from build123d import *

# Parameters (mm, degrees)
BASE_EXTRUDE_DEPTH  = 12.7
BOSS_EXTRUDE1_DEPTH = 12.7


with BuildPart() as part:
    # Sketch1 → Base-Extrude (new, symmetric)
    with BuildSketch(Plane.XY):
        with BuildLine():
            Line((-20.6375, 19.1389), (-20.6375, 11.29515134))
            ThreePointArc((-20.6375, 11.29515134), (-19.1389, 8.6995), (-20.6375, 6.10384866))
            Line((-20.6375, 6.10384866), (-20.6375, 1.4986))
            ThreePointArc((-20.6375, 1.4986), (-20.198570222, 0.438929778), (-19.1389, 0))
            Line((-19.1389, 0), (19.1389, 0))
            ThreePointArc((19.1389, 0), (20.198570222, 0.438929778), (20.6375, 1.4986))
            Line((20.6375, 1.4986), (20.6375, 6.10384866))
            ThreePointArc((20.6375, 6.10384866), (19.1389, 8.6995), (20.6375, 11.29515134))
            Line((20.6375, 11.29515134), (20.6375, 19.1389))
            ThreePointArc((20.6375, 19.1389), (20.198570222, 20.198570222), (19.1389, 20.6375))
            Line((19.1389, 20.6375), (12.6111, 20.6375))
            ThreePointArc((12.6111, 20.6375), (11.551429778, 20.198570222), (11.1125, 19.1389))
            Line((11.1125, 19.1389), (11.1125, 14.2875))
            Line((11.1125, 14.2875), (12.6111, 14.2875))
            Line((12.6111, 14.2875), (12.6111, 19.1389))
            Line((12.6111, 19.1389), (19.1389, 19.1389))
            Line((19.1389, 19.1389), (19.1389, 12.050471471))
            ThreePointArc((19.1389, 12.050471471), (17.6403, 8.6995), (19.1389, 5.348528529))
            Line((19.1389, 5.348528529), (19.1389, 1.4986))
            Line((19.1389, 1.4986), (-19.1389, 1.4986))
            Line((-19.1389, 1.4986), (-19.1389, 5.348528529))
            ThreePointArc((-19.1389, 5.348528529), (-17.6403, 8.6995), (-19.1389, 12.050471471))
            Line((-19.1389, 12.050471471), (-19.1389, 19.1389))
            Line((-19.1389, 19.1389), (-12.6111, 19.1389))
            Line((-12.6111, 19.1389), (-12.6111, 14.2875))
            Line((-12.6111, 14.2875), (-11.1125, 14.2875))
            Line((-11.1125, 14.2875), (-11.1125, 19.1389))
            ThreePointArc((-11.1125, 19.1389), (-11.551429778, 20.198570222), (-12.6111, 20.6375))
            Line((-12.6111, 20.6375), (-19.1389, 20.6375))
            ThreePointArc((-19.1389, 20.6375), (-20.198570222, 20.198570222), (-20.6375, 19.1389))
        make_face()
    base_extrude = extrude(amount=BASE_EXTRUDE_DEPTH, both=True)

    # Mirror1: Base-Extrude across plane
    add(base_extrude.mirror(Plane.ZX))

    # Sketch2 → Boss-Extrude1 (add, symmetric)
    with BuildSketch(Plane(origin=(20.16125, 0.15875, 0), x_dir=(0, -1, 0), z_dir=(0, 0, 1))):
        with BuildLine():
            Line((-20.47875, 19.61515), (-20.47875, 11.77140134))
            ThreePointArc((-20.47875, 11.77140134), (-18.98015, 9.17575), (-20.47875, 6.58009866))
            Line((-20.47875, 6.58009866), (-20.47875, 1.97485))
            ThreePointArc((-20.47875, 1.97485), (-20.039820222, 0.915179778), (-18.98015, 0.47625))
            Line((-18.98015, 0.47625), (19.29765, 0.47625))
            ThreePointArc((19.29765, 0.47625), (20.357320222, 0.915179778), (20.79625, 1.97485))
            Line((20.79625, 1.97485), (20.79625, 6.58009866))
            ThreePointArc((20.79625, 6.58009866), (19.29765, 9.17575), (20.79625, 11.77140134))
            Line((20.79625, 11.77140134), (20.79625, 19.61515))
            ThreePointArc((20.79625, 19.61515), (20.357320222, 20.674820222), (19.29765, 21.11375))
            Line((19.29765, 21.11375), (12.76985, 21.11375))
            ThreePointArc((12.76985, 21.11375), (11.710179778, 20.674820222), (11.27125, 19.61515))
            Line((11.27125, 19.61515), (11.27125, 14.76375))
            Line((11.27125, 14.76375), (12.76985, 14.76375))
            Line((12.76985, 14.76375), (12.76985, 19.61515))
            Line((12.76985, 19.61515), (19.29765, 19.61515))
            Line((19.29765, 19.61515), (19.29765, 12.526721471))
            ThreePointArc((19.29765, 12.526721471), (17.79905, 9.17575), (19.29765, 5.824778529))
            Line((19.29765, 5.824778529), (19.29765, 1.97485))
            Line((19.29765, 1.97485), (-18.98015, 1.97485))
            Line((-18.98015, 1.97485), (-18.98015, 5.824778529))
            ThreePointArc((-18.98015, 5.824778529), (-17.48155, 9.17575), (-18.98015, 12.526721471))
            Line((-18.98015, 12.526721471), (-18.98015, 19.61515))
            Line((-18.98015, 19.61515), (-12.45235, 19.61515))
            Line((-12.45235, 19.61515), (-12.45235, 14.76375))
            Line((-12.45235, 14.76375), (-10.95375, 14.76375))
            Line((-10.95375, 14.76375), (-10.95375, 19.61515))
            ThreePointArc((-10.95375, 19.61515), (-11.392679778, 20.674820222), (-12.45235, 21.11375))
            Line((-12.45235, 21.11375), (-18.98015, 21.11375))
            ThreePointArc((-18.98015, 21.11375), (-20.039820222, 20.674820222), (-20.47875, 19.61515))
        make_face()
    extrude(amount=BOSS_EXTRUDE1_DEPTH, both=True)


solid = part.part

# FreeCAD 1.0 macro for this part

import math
import FreeCAD as App
import Part
import Sketcher
Q = App.Units.Quantity

doc = App.newDocument("Part")
body = doc.addObject("PartDesign::Body", "Body")

sketch1 = doc.addObject("Sketcher::SketchObject", "Sketch")
body.addObject(sketch1)
sketch1.AttachmentSupport = (doc.XY_Plane, [""])
sketch1.MapMode = "FlatFace"
sketch1.addGeometry(Part.LineSegment(App.Vector(-20.6, 19.1, 0), App.Vector(-20.6, 11.3, 0)), False)
sketch1.addGeometry(Part.ArcOfCircle(Part.Circle(App.Vector(-22.1, 8.7, 0), App.Vector(0, 0, 1), 3), math.radians(-60), math.radians(60)), False)
sketch1.addGeometry(Part.LineSegment(App.Vector(-20.6, 6.1, 0), App.Vector(-20.6, 1.5, 0)), False)
sketch1.addGeometry(Part.ArcOfCircle(Part.Circle(App.Vector(-19.1, 1.5, 0), App.Vector(0, 0, 1), 1.5), math.radians(-180), math.radians(-90)), False)
sketch1.addGeometry(Part.LineSegment(App.Vector(-19.1, 0, 0), App.Vector(19.1, 0, 0)), False)
sketch1.addGeometry(Part.ArcOfCircle(Part.Circle(App.Vector(19.1, 1.5, 0), App.Vector(0, 0, 1), 1.5), math.radians(-90), math.radians(0)), False)
sketch1.addGeometry(Part.LineSegment(App.Vector(20.6, 1.5, 0), App.Vector(20.6, 6.1, 0)), False)
sketch1.addGeometry(Part.ArcOfCircle(Part.Circle(App.Vector(22.1, 8.7, 0), App.Vector(0, 0, 1), 3), math.radians(120), math.radians(240)), False)
sketch1.addGeometry(Part.LineSegment(App.Vector(20.6, 11.3, 0), App.Vector(20.6, 19.1, 0)), False)
sketch1.addGeometry(Part.ArcOfCircle(Part.Circle(App.Vector(19.1, 19.1, 0), App.Vector(0, 0, 1), 1.5), math.radians(0), math.radians(90)), False)
sketch1.addGeometry(Part.LineSegment(App.Vector(19.1, 20.6, 0), App.Vector(12.6, 20.6, 0)), False)
sketch1.addGeometry(Part.ArcOfCircle(Part.Circle(App.Vector(12.6, 19.1, 0), App.Vector(0, 0, 1), 1.5), math.radians(90), math.radians(180)), False)
sketch1.addGeometry(Part.LineSegment(App.Vector(11.1, 19.1, 0), App.Vector(11.1, 14.3, 0)), False)
sketch1.addGeometry(Part.LineSegment(App.Vector(11.1, 14.3, 0), App.Vector(12.6, 14.3, 0)), False)
sketch1.addGeometry(Part.LineSegment(App.Vector(12.6, 14.3, 0), App.Vector(12.6, 19.1, 0)), False)
sketch1.addGeometry(Part.LineSegment(App.Vector(12.6, 19.1, 0), App.Vector(19.1, 19.1, 0)), False)
sketch1.addGeometry(Part.LineSegment(App.Vector(19.1, 19.1, 0), App.Vector(19.1, 12.1, 0)), False)
sketch1.addGeometry(Part.ArcOfCircle(Part.Circle(App.Vector(22.1, 8.7, 0), App.Vector(0, 0, 1), 4.5), math.radians(132), math.radians(228)), False)
sketch1.addGeometry(Part.LineSegment(App.Vector(19.1, 5.3, 0), App.Vector(19.1, 1.5, 0)), False)
sketch1.addGeometry(Part.LineSegment(App.Vector(19.1, 1.5, 0), App.Vector(-19.1, 1.5, 0)), False)
sketch1.addGeometry(Part.LineSegment(App.Vector(-19.1, 1.5, 0), App.Vector(-19.1, 5.3, 0)), False)
sketch1.addGeometry(Part.ArcOfCircle(Part.Circle(App.Vector(-22.1, 8.7, 0), App.Vector(0, 0, 1), 4.5), math.radians(-48), math.radians(48)), False)
sketch1.addGeometry(Part.LineSegment(App.Vector(-19.1, 12.1, 0), App.Vector(-19.1, 19.1, 0)), False)
sketch1.addGeometry(Part.LineSegment(App.Vector(-19.1, 19.1, 0), App.Vector(-12.6, 19.1, 0)), False)
sketch1.addGeometry(Part.LineSegment(App.Vector(-12.6, 19.1, 0), App.Vector(-12.6, 14.3, 0)), False)
sketch1.addGeometry(Part.LineSegment(App.Vector(-12.6, 14.3, 0), App.Vector(-11.1, 14.3, 0)), False)
sketch1.addGeometry(Part.LineSegment(App.Vector(-11.1, 14.3, 0), App.Vector(-11.1, 19.1, 0)), False)
sketch1.addGeometry(Part.ArcOfCircle(Part.Circle(App.Vector(-12.6, 19.1, 0), App.Vector(0, 0, 1), 1.5), math.radians(0), math.radians(90)), False)
sketch1.addGeometry(Part.LineSegment(App.Vector(-12.6, 20.6, 0), App.Vector(-19.1, 20.6, 0)), False)
sketch1.addGeometry(Part.ArcOfCircle(Part.Circle(App.Vector(-19.1, 19.1, 0), App.Vector(0, 0, 1), 1.5), math.radians(90), math.radians(180)), False)
sketch1.addConstraint(Sketcher.Constraint("Coincident", 0, 2, 1, 2))
sketch1.addConstraint(Sketcher.Constraint("Coincident", 1, 1, 2, 1))
sketch1.addConstraint(Sketcher.Constraint("Tangent", 2, 2, 3, 1))
sketch1.addConstraint(Sketcher.Constraint("Tangent", 3, 2, 4, 1))
sketch1.addConstraint(Sketcher.Constraint("Tangent", 4, 2, 5, 1))
sketch1.addConstraint(Sketcher.Constraint("Tangent", 5, 2, 6, 1))
sketch1.addConstraint(Sketcher.Constraint("Coincident", 6, 2, 7, 2))
sketch1.addConstraint(Sketcher.Constraint("Coincident", 7, 1, 8, 1))
sketch1.addConstraint(Sketcher.Constraint("Tangent", 8, 2, 9, 1))
sketch1.addConstraint(Sketcher.Constraint("Tangent", 9, 2, 10, 1))
sketch1.addConstraint(Sketcher.Constraint("Tangent", 10, 2, 11, 1))
sketch1.addConstraint(Sketcher.Constraint("Tangent", 11, 2, 12, 1))
sketch1.addConstraint(Sketcher.Constraint("Coincident", 12, 2, 13, 1))
sketch1.addConstraint(Sketcher.Constraint("Coincident", 13, 2, 14, 1))
sketch1.addConstraint(Sketcher.Constraint("Coincident", 14, 2, 15, 1))
sketch1.addConstraint(Sketcher.Constraint("Coincident", 15, 2, 16, 1))
sketch1.addConstraint(Sketcher.Constraint("Coincident", 16, 2, 17, 1))
sketch1.addConstraint(Sketcher.Constraint("Coincident", 17, 2, 18, 1))
sketch1.addConstraint(Sketcher.Constraint("Coincident", 18, 2, 19, 1))
sketch1.addConstraint(Sketcher.Constraint("Coincident", 19, 2, 20, 1))
sketch1.addConstraint(Sketcher.Constraint("Coincident", 20, 2, 21, 1))
sketch1.addConstraint(Sketcher.Constraint("Coincident", 21, 2, 22, 1))
sketch1.addConstraint(Sketcher.Constraint("Coincident", 22, 2, 23, 1))
sketch1.addConstraint(Sketcher.Constraint("Coincident", 23, 2, 24, 1))
sketch1.addConstraint(Sketcher.Constraint("Coincident", 24, 2, 25, 1))
sketch1.addConstraint(Sketcher.Constraint("Coincident", 25, 2, 26, 1))
sketch1.addConstraint(Sketcher.Constraint("Tangent", 26, 2, 27, 1))
sketch1.addConstraint(Sketcher.Constraint("Tangent", 27, 2, 28, 1))
sketch1.addConstraint(Sketcher.Constraint("Tangent", 28, 2, 29, 1))
sketch1.addConstraint(Sketcher.Constraint("Tangent", 29, 2, 0, 1))
sketch1.addConstraint(Sketcher.Constraint("Vertical", 0))
sketch1.addConstraint(Sketcher.Constraint("Vertical", 2))
sketch1.addConstraint(Sketcher.Constraint("Horizontal", 4))
sketch1.addConstraint(Sketcher.Constraint("Vertical", 6))
sketch1.addConstraint(Sketcher.Constraint("Vertical", 8))
sketch1.addConstraint(Sketcher.Constraint("Horizontal", 10))
sketch1.addConstraint(Sketcher.Constraint("Vertical", 12))
sketch1.addConstraint(Sketcher.Constraint("Horizontal", 13))
sketch1.addConstraint(Sketcher.Constraint("Vertical", 14))
sketch1.addConstraint(Sketcher.Constraint("Horizontal", 15))
sketch1.addConstraint(Sketcher.Constraint("Vertical", 16))
sketch1.addConstraint(Sketcher.Constraint("Vertical", 18))
sketch1.addConstraint(Sketcher.Constraint("Horizontal", 19))
sketch1.addConstraint(Sketcher.Constraint("Vertical", 20))
sketch1.addConstraint(Sketcher.Constraint("Vertical", 22))
sketch1.addConstraint(Sketcher.Constraint("Horizontal", 23))
sketch1.addConstraint(Sketcher.Constraint("Vertical", 24))
sketch1.addConstraint(Sketcher.Constraint("Horizontal", 25))
sketch1.addConstraint(Sketcher.Constraint("Vertical", 26))
sketch1.addConstraint(Sketcher.Constraint("Horizontal", 28))
sketch1.addConstraint(Sketcher.Constraint("Coincident", 17, 3, 7, 3))
sketch1.addConstraint(Sketcher.Constraint("Coincident", 21, 3, 1, 3))
sketch1.addConstraint(Sketcher.Constraint("Coincident", 14, 2, 11, 3))
sketch1.addConstraint(Sketcher.Constraint("Coincident", 15, 2, 9, 3))
sketch1.addConstraint(Sketcher.Constraint("Coincident", 18, 2, 5, 3))
sketch1.addConstraint(Sketcher.Constraint("Coincident", 19, 2, 3, 3))
sketch1.addConstraint(Sketcher.Constraint("Coincident", 22, 2, 29, 3))
sketch1.addConstraint(Sketcher.Constraint("Coincident", 23, 2, 27, 3))
sketch1.addConstraint(Sketcher.Constraint("Equal", 1, 7))
sketch1.addConstraint(Sketcher.Constraint("Equal", 5, 9))
sketch1.addConstraint(Sketcher.Constraint("Equal", 17, 21))
sketch1.addConstraint(Sketcher.Constraint("Equal", 11, 27))
sketch1.addConstraint(Sketcher.Constraint("Symmetric", 3, 2, 4, 2, -1, 1))
sketch1.addConstraint(Sketcher.Constraint("Symmetric", 1, 3, 7, 3, -2))
sketch1.addConstraint(Sketcher.Constraint("Symmetric", 11, 3, 27, 3, -2))
sketch1.addConstraint(Sketcher.Constraint("Horizontal", 0, 2, 7, 1))
sketch1.addConstraint(Sketcher.Constraint("Horizontal", 13, 2, 24, 2))
sketch1.addConstraint(Sketcher.Constraint("Vertical", 5, 3, 9, 3))
sketch1.addConstraint(Sketcher.Constraint("Radius", 1, Q("0.118 in")))
sketch1.addConstraint(Sketcher.Constraint("Radius", 3, Q("0.059 in")))
sketch1.addConstraint(Sketcher.Constraint("Radius", 17, Q("0.177 in")))
sketch1.addConstraint(Sketcher.Constraint("DistanceX", 4, 1, 4, 2, Q("1.507 in")))
sketch1.addConstraint(Sketcher.Constraint("DistanceX", 10, 2, 10, 1, Q("0.257 in")))
sketch1.addConstraint(Sketcher.Constraint("DistanceY", 12, 2, 12, 1, Q("0.191 in")))
sketch1.addConstraint(Sketcher.Constraint("DistanceY", 7, 3, 9, 2, Q("0.47 in")))
sketch1.addConstraint(Sketcher.Constraint("DistanceY", -1, 1, 9, 2, Q("0.8125 in")))
sketch1.addConstraint(Sketcher.Constraint("DistanceX", 1, 3, 3, 3, Q("0.118 in")))
pad1 = doc.addObject("PartDesign::Pad", "Pad")
body.addObject(pad1)
pad1.Profile = sketch1
pad1.Length = Q("1 in")
pad1.Midplane = True
doc.recompute()

mirrored = doc.addObject("PartDesign::Mirrored", "Mirrored")
body.addObject(mirrored)
mirrored.Originals = [pad1]
mirrored.MirrorPlane = (doc.XZ_Plane, [""])
body.Tip = mirrored

sketch2 = doc.addObject("Sketcher::SketchObject", "Sketch001")
body.addObject(sketch2)
sketch2.AttachmentSupport = (doc.XY_Plane, [""])
sketch2.MapMode = "FlatFace"
sketch2.addGeometry(Part.LineSegment(App.Vector(39.8, 20.6, 0), App.Vector(31.9, 20.6, 0)), False)
sketch2.addGeometry(Part.ArcOfCircle(Part.Circle(App.Vector(29.3, 22.1, 0), App.Vector(0, 0, 1), 3), math.radians(-150), math.radians(-30)), False)
sketch2.addGeometry(Part.LineSegment(App.Vector(26.7, 20.6, 0), App.Vector(22.1, 20.6, 0)), False)
sketch2.addGeometry(Part.ArcOfCircle(Part.Circle(App.Vector(22.1, 19.1, 0), App.Vector(0, 0, 1), 1.5), math.radians(90), math.radians(180)), False)
sketch2.addGeometry(Part.LineSegment(App.Vector(20.6, 19.1, 0), App.Vector(20.6, -19.1, 0)), False)
sketch2.addGeometry(Part.ArcOfCircle(Part.Circle(App.Vector(22.1, -19.1, 0), App.Vector(0, 0, 1), 1.5), math.radians(-180), math.radians(-90)), False)
sketch2.addGeometry(Part.LineSegment(App.Vector(22.1, -20.6, 0), App.Vector(26.7, -20.6, 0)), False)
sketch2.addGeometry(Part.ArcOfCircle(Part.Circle(App.Vector(29.3, -22.1, 0), App.Vector(0, 0, 1), 3), math.radians(30), math.radians(150)), False)
sketch2.addGeometry(Part.LineSegment(App.Vector(31.9, -20.6, 0), App.Vector(39.8, -20.6, 0)), False)
sketch2.addGeometry(Part.ArcOfCircle(Part.Circle(App.Vector(39.8, -19.1, 0), App.Vector(0, 0, 1), 1.5), math.radians(-90), math.radians(0)), False)
sketch2.addGeometry(Part.LineSegment(App.Vector(41.3, -19.1, 0), App.Vector(41.3, -12.6, 0)), False)
sketch2.addGeometry(Part.ArcOfCircle(Part.Circle(App.Vector(39.8, -12.6, 0), App.Vector(0, 0, 1), 1.5), math.radians(0), math.radians(90)), False)
sketch2.addGeometry(Part.LineSegment(App.Vector(39.8, -11.1, 0), App.Vector(34.9, -11.1, 0)), False)
sketch2.addGeometry(Part.LineSegment(App.Vector(34.9, -11.1, 0), App.Vector(34.9, -12.6, 0)), False)
sketch2.addGeometry(Part.LineSegment(App.Vector(34.9, -12.6, 0), App.Vector(39.8, -12.6, 0)), False)
sketch2.addGeometry(Part.LineSegment(App.Vector(39.8, -12.6, 0), App.Vector(39.8, -19.1, 0)), False)
sketch2.addGeometry(Part.LineSegment(App.Vector(39.8, -19.1, 0), App.Vector(32.7, -19.1, 0)), False)
sketch2.addGeometry(Part.ArcOfCircle(Part.Circle(App.Vector(29.3, -22.1, 0), App.Vector(0, 0, 1), 4.5), math.radians(42), math.radians(138)), False)
sketch2.addGeometry(Part.LineSegment(App.Vector(26, -19.1, 0), App.Vector(22.1, -19.1, 0)), False)
sketch2.addGeometry(Part.LineSegment(App.Vector(22.1, -19.1, 0), App.Vector(22.1, 19.1, 0)), False)
sketch2.addGeometry(Part.LineSegment(App.Vector(22.1, 19.1, 0), App.Vector(26, 19.1, 0)), False)
sketch2.addGeometry(Part.ArcOfCircle(Part.Circle(App.Vector(29.3, 22.1, 0), App.Vector(0, 0, 1), 4.5), math.radians(-138), math.radians(-42)), False)
sketch2.addGeometry(Part.LineSegment(App.Vector(32.7, 19.1, 0), App.Vector(39.8, 19.1, 0)), False)
sketch2.addGeometry(Part.LineSegment(App.Vector(39.8, 19.1, 0), App.Vector(39.8, 12.6, 0)), False)
sketch2.addGeometry(Part.LineSegment(App.Vector(39.8, 12.6, 0), App.Vector(34.9, 12.6, 0)), False)
sketch2.addGeometry(Part.LineSegment(App.Vector(34.9, 12.6, 0), App.Vector(34.9, 11.1, 0)), False)
sketch2.addGeometry(Part.LineSegment(App.Vector(34.9, 11.1, 0), App.Vector(39.8, 11.1, 0)), False)
sketch2.addGeometry(Part.ArcOfCircle(Part.Circle(App.Vector(39.8, 12.6, 0), App.Vector(0, 0, 1), 1.5), math.radians(-90), math.radians(0)), False)
sketch2.addGeometry(Part.LineSegment(App.Vector(41.3, 12.6, 0), App.Vector(41.3, 19.1, 0)), False)
sketch2.addGeometry(Part.ArcOfCircle(Part.Circle(App.Vector(39.8, 19.1, 0), App.Vector(0, 0, 1), 1.5), math.radians(0), math.radians(90)), False)
sketch2.addConstraint(Sketcher.Constraint("Coincident", 0, 2, 1, 2))
sketch2.addConstraint(Sketcher.Constraint("Coincident", 1, 1, 2, 1))
sketch2.addConstraint(Sketcher.Constraint("Tangent", 2, 2, 3, 1))
sketch2.addConstraint(Sketcher.Constraint("Tangent", 3, 2, 4, 1))
sketch2.addConstraint(Sketcher.Constraint("Tangent", 4, 2, 5, 1))
sketch2.addConstraint(Sketcher.Constraint("Tangent", 5, 2, 6, 1))
sketch2.addConstraint(Sketcher.Constraint("Coincident", 6, 2, 7, 2))
sketch2.addConstraint(Sketcher.Constraint("Coincident", 7, 1, 8, 1))
sketch2.addConstraint(Sketcher.Constraint("Tangent", 8, 2, 9, 1))
sketch2.addConstraint(Sketcher.Constraint("Tangent", 9, 2, 10, 1))
sketch2.addConstraint(Sketcher.Constraint("Tangent", 10, 2, 11, 1))
sketch2.addConstraint(Sketcher.Constraint("Tangent", 11, 2, 12, 1))
sketch2.addConstraint(Sketcher.Constraint("Coincident", 12, 2, 13, 1))
sketch2.addConstraint(Sketcher.Constraint("Coincident", 13, 2, 14, 1))
sketch2.addConstraint(Sketcher.Constraint("Coincident", 14, 2, 15, 1))
sketch2.addConstraint(Sketcher.Constraint("Coincident", 15, 2, 16, 1))
sketch2.addConstraint(Sketcher.Constraint("Coincident", 16, 2, 17, 1))
sketch2.addConstraint(Sketcher.Constraint("Coincident", 17, 2, 18, 1))
sketch2.addConstraint(Sketcher.Constraint("Coincident", 18, 2, 19, 1))
sketch2.addConstraint(Sketcher.Constraint("Coincident", 19, 2, 20, 1))
sketch2.addConstraint(Sketcher.Constraint("Coincident", 20, 2, 21, 1))
sketch2.addConstraint(Sketcher.Constraint("Coincident", 21, 2, 22, 1))
sketch2.addConstraint(Sketcher.Constraint("Coincident", 22, 2, 23, 1))
sketch2.addConstraint(Sketcher.Constraint("Coincident", 23, 2, 24, 1))
sketch2.addConstraint(Sketcher.Constraint("Coincident", 24, 2, 25, 1))
sketch2.addConstraint(Sketcher.Constraint("Coincident", 25, 2, 26, 1))
sketch2.addConstraint(Sketcher.Constraint("Tangent", 26, 2, 27, 1))
sketch2.addConstraint(Sketcher.Constraint("Tangent", 27, 2, 28, 1))
sketch2.addConstraint(Sketcher.Constraint("Tangent", 28, 2, 29, 1))
sketch2.addConstraint(Sketcher.Constraint("Tangent", 29, 2, 0, 1))
sketch2.addConstraint(Sketcher.Constraint("Horizontal", 0))
sketch2.addConstraint(Sketcher.Constraint("Horizontal", 2))
sketch2.addConstraint(Sketcher.Constraint("Vertical", 4))
sketch2.addConstraint(Sketcher.Constraint("Horizontal", 6))
sketch2.addConstraint(Sketcher.Constraint("Horizontal", 8))
sketch2.addConstraint(Sketcher.Constraint("Vertical", 10))
sketch2.addConstraint(Sketcher.Constraint("Horizontal", 12))
sketch2.addConstraint(Sketcher.Constraint("Vertical", 13))
sketch2.addConstraint(Sketcher.Constraint("Horizontal", 14))
sketch2.addConstraint(Sketcher.Constraint("Vertical", 15))
sketch2.addConstraint(Sketcher.Constraint("Horizontal", 16))
sketch2.addConstraint(Sketcher.Constraint("Horizontal", 18))
sketch2.addConstraint(Sketcher.Constraint("Vertical", 19))
sketch2.addConstraint(Sketcher.Constraint("Horizontal", 20))
sketch2.addConstraint(Sketcher.Constraint("Horizontal", 22))
sketch2.addConstraint(Sketcher.Constraint("Vertical", 23))
sketch2.addConstraint(Sketcher.Constraint("Horizontal", 24))
sketch2.addConstraint(Sketcher.Constraint("Vertical", 25))
sketch2.addConstraint(Sketcher.Constraint("Horizontal", 26))
sketch2.addConstraint(Sketcher.Constraint("Vertical", 28))
sketch2.addConstraint(Sketcher.Constraint("Coincident", 17, 3, 7, 3))
sketch2.addConstraint(Sketcher.Constraint("Coincident", 21, 3, 1, 3))
sketch2.addConstraint(Sketcher.Constraint("Coincident", 14, 2, 11, 3))
sketch2.addConstraint(Sketcher.Constraint("Coincident", 15, 2, 9, 3))
sketch2.addConstraint(Sketcher.Constraint("Coincident", 18, 2, 5, 3))
sketch2.addConstraint(Sketcher.Constraint("Coincident", 19, 2, 3, 3))
sketch2.addConstraint(Sketcher.Constraint("Coincident", 22, 2, 29, 3))
sketch2.addConstraint(Sketcher.Constraint("Coincident", 23, 2, 27, 3))
sketch2.addConstraint(Sketcher.Constraint("Equal", 1, 7))
sketch2.addConstraint(Sketcher.Constraint("Equal", 5, 9))
sketch2.addConstraint(Sketcher.Constraint("Equal", 17, 21))
sketch2.addConstraint(Sketcher.Constraint("Equal", 11, 27))
sketch2.addConstraint(Sketcher.Constraint("Symmetric", 1, 3, 7, 3, -1))
sketch2.addConstraint(Sketcher.Constraint("Symmetric", 11, 3, 27, 3, -1))
sketch2.addConstraint(Sketcher.Constraint("Horizontal", 5, 3, 9, 3))
sketch2.addConstraint(Sketcher.Constraint("Horizontal", 3, 3, 29, 3))
sketch2.addConstraint(Sketcher.Constraint("Vertical", 1, 1, 6, 2))
sketch2.addConstraint(Sketcher.Constraint("Vertical", 13, 2, 24, 2))
sketch2.addConstraint(Sketcher.Constraint("Radius", 1, Q("0.118 in")))
sketch2.addConstraint(Sketcher.Constraint("Radius", 3, Q("0.059 in")))
sketch2.addConstraint(Sketcher.Constraint("Radius", 17, Q("0.177 in")))
sketch2.addConstraint(Sketcher.Constraint("DistanceX", 12, 2, 12, 1, Q("0.191 in")))
sketch2.addConstraint(Sketcher.Constraint("DistanceY", 4, 2, 4, 1, Q("1.507 in")))
sketch2.addConstraint(Sketcher.Constraint("DistanceY", 10, 1, 10, 2, Q("0.257 in")))
sketch2.addConstraint(Sketcher.Constraint("DistanceX", 7, 3, 9, 2, Q("0.47 in")))
sketch2.addConstraint(Sketcher.Constraint("DistanceX", -1, 1, 1, 3, Q("1.155 in")))
sketch2.addConstraint(Sketcher.Constraint("DistanceX", -1, 1, 3, 2, Q("0.8125 in")))
sketch2.addConstraint(Sketcher.Constraint("DistanceY", 3, 3, 1, 3, Q("0.118 in")))
pad2 = doc.addObject("PartDesign::Pad", "Pad001")
body.addObject(pad2)
pad2.Profile = sketch2
pad2.Length = Q("1 in")
pad2.Midplane = True

doc.recompute()
